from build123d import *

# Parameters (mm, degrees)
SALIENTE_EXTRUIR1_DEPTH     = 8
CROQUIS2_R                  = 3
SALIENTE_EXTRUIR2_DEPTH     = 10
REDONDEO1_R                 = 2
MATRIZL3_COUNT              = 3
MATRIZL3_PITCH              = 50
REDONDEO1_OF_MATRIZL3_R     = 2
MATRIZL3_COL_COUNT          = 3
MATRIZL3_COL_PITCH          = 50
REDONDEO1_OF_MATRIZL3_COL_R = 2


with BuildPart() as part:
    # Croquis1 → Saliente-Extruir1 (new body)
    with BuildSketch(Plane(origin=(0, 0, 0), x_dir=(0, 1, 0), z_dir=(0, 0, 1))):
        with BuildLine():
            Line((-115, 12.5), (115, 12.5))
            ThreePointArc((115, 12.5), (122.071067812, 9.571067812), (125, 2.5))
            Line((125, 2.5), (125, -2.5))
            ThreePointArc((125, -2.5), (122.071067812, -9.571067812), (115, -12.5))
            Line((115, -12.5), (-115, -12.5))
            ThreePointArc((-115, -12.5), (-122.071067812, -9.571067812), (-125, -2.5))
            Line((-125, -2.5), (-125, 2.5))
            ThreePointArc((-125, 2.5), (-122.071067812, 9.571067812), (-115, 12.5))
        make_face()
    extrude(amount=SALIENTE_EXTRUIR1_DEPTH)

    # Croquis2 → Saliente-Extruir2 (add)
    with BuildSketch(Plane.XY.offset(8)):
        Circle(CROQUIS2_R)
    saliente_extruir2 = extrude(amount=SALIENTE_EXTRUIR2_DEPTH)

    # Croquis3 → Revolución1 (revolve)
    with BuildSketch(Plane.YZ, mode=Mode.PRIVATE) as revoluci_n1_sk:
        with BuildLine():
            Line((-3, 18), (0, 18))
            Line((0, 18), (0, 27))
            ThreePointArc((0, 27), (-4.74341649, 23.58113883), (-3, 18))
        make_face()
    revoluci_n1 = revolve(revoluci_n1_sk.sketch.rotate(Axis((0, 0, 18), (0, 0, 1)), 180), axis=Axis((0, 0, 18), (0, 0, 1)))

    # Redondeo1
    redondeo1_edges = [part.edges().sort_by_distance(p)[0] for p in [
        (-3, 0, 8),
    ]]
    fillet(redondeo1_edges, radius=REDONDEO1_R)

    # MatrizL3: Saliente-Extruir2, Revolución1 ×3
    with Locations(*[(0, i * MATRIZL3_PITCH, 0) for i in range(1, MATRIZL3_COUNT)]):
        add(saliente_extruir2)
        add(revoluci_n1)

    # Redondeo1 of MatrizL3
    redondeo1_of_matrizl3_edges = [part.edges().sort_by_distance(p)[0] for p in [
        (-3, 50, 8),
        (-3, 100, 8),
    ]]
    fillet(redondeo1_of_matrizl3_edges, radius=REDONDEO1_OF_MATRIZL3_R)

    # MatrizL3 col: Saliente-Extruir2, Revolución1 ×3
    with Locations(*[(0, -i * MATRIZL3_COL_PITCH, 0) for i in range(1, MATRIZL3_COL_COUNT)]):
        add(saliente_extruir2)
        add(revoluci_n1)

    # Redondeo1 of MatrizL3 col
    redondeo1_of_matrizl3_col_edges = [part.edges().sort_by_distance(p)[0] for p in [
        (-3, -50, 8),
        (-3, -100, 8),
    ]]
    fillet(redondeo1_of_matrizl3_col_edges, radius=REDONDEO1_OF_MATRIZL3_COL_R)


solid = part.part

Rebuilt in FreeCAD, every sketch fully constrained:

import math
import FreeCAD as App
import Part
import Sketcher
Q = App.Units.Quantity


def edges_at(feature, points):
    """Names of the edges that pass closest to the given points."""
    edges = feature.Shape.Edges
    near = lambda p: min(range(len(edges)), key=lambda i: edges[i].distToShape(Part.Vertex(*p))[0])
    return sorted({f"Edge{near(p) + 1}" for p in points})

doc = App.newDocument("Part")
body = doc.addObject("PartDesign::Body", "Body")

sketch1 = doc.addObject("Sketcher::SketchObject", "Sketch")
body.addObject(sketch1)
sketch1.AttachmentSupport = (doc.XY_Plane, [""])
sketch1.MapMode = "FlatFace"
sketch1.addGeometry([
    Part.LineSegment(App.Vector(-12, 115, 0), App.Vector(-12, -115, 0)),
    Part.ArcOfCircle(Part.Circle(App.Vector(-2, -115, 0), App.Vector(0, 0, 1), 10), math.radians(180), math.radians(270)),
    Part.LineSegment(App.Vector(-2, -125, 0), App.Vector(2, -125, 0)),
    Part.ArcOfCircle(Part.Circle(App.Vector(2, -115, 0), App.Vector(0, 0, 1), 10), math.radians(-90), math.radians(0)),
    Part.LineSegment(App.Vector(12, -115, 0), App.Vector(12, 115, 0)),
    Part.ArcOfCircle(Part.Circle(App.Vector(2, 115, 0), App.Vector(0, 0, 1), 10), math.radians(0), math.radians(90)),
    Part.LineSegment(App.Vector(2, 125, 0), App.Vector(-2, 125, 0)),
    Part.ArcOfCircle(Part.Circle(App.Vector(-2, 115, 0), App.Vector(0, 0, 1), 10), math.radians(90), math.radians(180)),
], False)
sketch1.addConstraint([
    Sketcher.Constraint("Tangent", 0, 2, 1, 1),
    Sketcher.Constraint("Tangent", 1, 2, 2, 1),
    Sketcher.Constraint("Tangent", 2, 2, 3, 1),
    Sketcher.Constraint("Tangent", 3, 2, 4, 1),
    Sketcher.Constraint("Tangent", 4, 2, 5, 1),
    Sketcher.Constraint("Tangent", 5, 2, 6, 1),
    Sketcher.Constraint("Tangent", 6, 2, 7, 1),
    Sketcher.Constraint("Tangent", 7, 2, 0, 1),
    Sketcher.Constraint("Vertical", 0),
    Sketcher.Constraint("Horizontal", 2),
    Sketcher.Constraint("Vertical", 4),
    Sketcher.Constraint("Horizontal", 6),
    Sketcher.Constraint("Equal", 1, 3),
    Sketcher.Constraint("Equal", 3, 5),
    Sketcher.Constraint("Equal", 5, 7),
    Sketcher.Constraint("Symmetric", 1, 3, 5, 3, -1, 1),
    Sketcher.Constraint("Radius", 1, Q("10 mm")),
    Sketcher.Constraint("DistanceX", 2, 1, 2, 2, Q("5 mm")),
    Sketcher.Constraint("DistanceY", 0, 2, 0, 1, Q("230 mm")),
])
pad1 = doc.addObject("PartDesign::Pad", "Pad")
body.addObject(pad1)
pad1.Profile = sketch1
pad1.Length = 8

sketch2 = doc.addObject("Sketcher::SketchObject", "Sketch001")
body.addObject(sketch2)
sketch2.AttachmentSupport = (doc.XY_Plane, [""])
sketch2.MapMode = "FlatFace"
sketch2.AttachmentOffset = App.Placement(App.Vector(0, 0, 8), App.Rotation())
sketch2.addGeometry(Part.Circle(App.Vector(0, 0, 0), App.Vector(0, 0, 1), 3), False)
sketch2.addConstraint([
    Sketcher.Constraint("Coincident", 0, 3, -1, 1),
    Sketcher.Constraint("Diameter", 0, Q("6 mm")),
])
pad2 = doc.addObject("PartDesign::Pad", "Pad001")
body.addObject(pad2)
pad2.Profile = sketch2
pad2.Length = 10

sketch3 = doc.addObject("Sketcher::SketchObject", "Sketch002")
body.addObject(sketch3)
sketch3.AttachmentSupport = (doc.YZ_Plane, [""])
sketch3.MapMode = "FlatFace"
sketch3.addGeometry([
    Part.LineSegment(App.Vector(-3, 18, 0), App.Vector(0, 18, 0)),
    Part.LineSegment(App.Vector(0, 18, 0), App.Vector(0, 27, 0)),
    Part.ArcOfCircle(Part.Circle(App.Vector(0, 22, 0), App.Vector(0, 0, 1), 5), math.radians(90), math.radians(233)),
], False)
sketch3.addConstraint([
    Sketcher.Constraint("Coincident", 0, 2, 1, 1),
    Sketcher.Constraint("Coincident", 1, 2, 2, 1),
    Sketcher.Constraint("Coincident", 2, 2, 0, 1),
    Sketcher.Constraint("Horizontal", 0),
    Sketcher.Constraint("Vertical", 1),
    Sketcher.Constraint("PointOnObject", 2, 3, -2),
    Sketcher.Constraint("PointOnObject", 0, 2, -2),
    Sketcher.Constraint("Radius", 2, Q("5 mm")),
    Sketcher.Constraint("DistanceX", 0, 1, 0, 2, Q("3 mm")),
    Sketcher.Constraint("DistanceY", -1, 1, 2, 3, Q("22 mm")),
])
revolution = doc.addObject("PartDesign::Revolution", "Revolution")
body.addObject(revolution)
revolution.Profile = sketch3
revolution.ReferenceAxis = (sketch3, ["V_Axis"])
revolution.Angle = 360
doc.recompute()

fillet = doc.addObject("PartDesign::Fillet", "Fillet")
body.addObject(fillet)
fillet.Base = (revolution, edges_at(revolution, [(-3, 0, 8)]))
fillet.Radius = 2
doc.recompute()

linearpattern = doc.addObject("PartDesign::LinearPattern", "LinearPattern")
body.addObject(linearpattern)
linearpattern.Originals = [pad2, revolution]
linearpattern.Direction = (doc.Y_Axis, [""])
linearpattern.Mode = "offset"
linearpattern.Offset = 50
linearpattern.Occurrences = 3
body.Tip = linearpattern
doc.recompute()

fillet2 = doc.addObject("PartDesign::Fillet", "Fillet001")
body.addObject(fillet2)
fillet2.Base = (linearpattern, edges_at(linearpattern, [(-3, 50, 8), (-3, 100, 8)]))
fillet2.Radius = 2
doc.recompute()

linearpattern2 = doc.addObject("PartDesign::LinearPattern", "LinearPattern001")
body.addObject(linearpattern2)
linearpattern2.Originals = [pad2, revolution]
linearpattern2.Direction = (doc.Y_Axis, [""])
linearpattern2.Mode = "offset"
linearpattern2.Offset = 50
linearpattern2.Occurrences = 3
linearpattern2.Reversed = True
body.Tip = linearpattern2
doc.recompute()

fillet3 = doc.addObject("PartDesign::Fillet", "Fillet002")
body.addObject(fillet3)
fillet3.Base = (linearpattern2, edges_at(linearpattern2, [(-3, -50, 8), (-3, -100, 8)]))
fillet3.Radius = 2

doc.recompute()
